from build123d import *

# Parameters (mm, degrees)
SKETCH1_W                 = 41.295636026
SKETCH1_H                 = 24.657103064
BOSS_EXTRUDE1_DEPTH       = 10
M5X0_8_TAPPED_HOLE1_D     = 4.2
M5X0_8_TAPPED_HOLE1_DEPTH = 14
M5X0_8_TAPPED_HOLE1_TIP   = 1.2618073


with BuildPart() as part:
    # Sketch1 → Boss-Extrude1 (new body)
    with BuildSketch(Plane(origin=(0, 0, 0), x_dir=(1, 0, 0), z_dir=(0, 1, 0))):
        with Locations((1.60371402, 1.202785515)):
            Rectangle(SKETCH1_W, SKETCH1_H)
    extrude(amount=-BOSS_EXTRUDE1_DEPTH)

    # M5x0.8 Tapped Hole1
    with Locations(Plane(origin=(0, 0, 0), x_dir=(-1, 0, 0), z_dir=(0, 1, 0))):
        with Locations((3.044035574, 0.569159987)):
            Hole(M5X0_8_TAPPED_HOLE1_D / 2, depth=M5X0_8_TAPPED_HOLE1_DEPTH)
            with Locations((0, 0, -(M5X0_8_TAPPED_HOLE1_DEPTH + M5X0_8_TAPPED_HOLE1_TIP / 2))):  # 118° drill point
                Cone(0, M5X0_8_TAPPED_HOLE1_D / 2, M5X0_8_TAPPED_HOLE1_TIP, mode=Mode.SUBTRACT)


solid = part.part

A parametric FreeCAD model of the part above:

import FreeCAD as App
import Part
import Sketcher

V = App.Vector
Q = App.Units.Quantity

doc = App.newDocument("Part")
body = doc.addObject("PartDesign::Body", "Body")

# Sketch on XZ plane
sketch1 = doc.addObject("Sketcher::SketchObject", "Sketch")
body.addObject(sketch1)
sketch1.AttachmentSupport = (doc.XZ_Plane, [""])
sketch1.MapMode = "FlatFace"
sketch1.addGeometry(Part.LineSegment(V(-19, -14, 0), V(-19, 11, 0)), False)
sketch1.addGeometry(Part.LineSegment(V(-19, 11, 0), V(22, 11, 0)), False)
sketch1.addGeometry(Part.LineSegment(V(22, 11, 0), V(22, -14, 0)), False)
sketch1.addGeometry(Part.LineSegment(V(22, -14, 0), V(-19, -14, 0)), False)
sketch1.addConstraint(Sketcher.Constraint("Coincident", 0, 2, 1, 1))
sketch1.addConstraint(Sketcher.Constraint("Coincident", 1, 2, 2, 1))
sketch1.addConstraint(Sketcher.Constraint("Coincident", 2, 2, 3, 1))
sketch1.addConstraint(Sketcher.Constraint("Coincident", 3, 2, 0, 1))
sketch1.addConstraint(Sketcher.Constraint("Vertical", 0))
sketch1.addConstraint(Sketcher.Constraint("Horizontal", 1))
sketch1.addConstraint(Sketcher.Constraint("Vertical", 2))
sketch1.addConstraint(Sketcher.Constraint("Horizontal", 3))
sketch1.addConstraint(Sketcher.Constraint("DistanceX", 1, 1, 1, 2, Q("41.295636 mm")))
sketch1.addConstraint(Sketcher.Constraint("DistanceY", 0, 1, 0, 2, Q("24.657103 mm")))
sketch1.addConstraint(Sketcher.Constraint("DistanceX", 0, 2, -1, 1, Q("19.044104 mm")))
sketch1.addConstraint(Sketcher.Constraint("DistanceY", -1, 1, 0, 2, Q("11.125766 mm")))
pad1 = doc.addObject("PartDesign::Pad", "Pad")
body.addObject(pad1)
pad1.Profile = sketch1
pad1.Length = 10

# Sketch on XZ plane
sketch2 = doc.addObject("Sketcher::SketchObject", "Sketch001")
body.addObject(sketch2)
sketch2.AttachmentSupport = (doc.XZ_Plane, [""])
sketch2.MapMode = "FlatFace"
sketch2.addGeometry(Part.Circle(V(-3, 0.6, 0), V(0, 0, 1), 2.1), False)
sketch2.addConstraint(Sketcher.Constraint("Diameter", 0, Q("4.2 mm")))
sketch2.addConstraint(Sketcher.Constraint("DistanceY", -1, 1, 0, 3, Q("0.56916 mm")))
sketch2.addConstraint(Sketcher.Constraint("DistanceX", 0, 3, -1, 1, Q("3.044036 mm")))
doc.recompute()
hole = doc.addObject("PartDesign::Hole", "Hole")
body.addObject(hole)
hole.Profile = sketch2
hole.ThreadType = "None"
hole.Diameter = 4.2
hole.DepthType = "Dimension"
hole.Depth = 14
hole.DrillPoint = "Angled"
hole.DrillPointAngle = 118
hole.Reversed = True

doc.recompute()
